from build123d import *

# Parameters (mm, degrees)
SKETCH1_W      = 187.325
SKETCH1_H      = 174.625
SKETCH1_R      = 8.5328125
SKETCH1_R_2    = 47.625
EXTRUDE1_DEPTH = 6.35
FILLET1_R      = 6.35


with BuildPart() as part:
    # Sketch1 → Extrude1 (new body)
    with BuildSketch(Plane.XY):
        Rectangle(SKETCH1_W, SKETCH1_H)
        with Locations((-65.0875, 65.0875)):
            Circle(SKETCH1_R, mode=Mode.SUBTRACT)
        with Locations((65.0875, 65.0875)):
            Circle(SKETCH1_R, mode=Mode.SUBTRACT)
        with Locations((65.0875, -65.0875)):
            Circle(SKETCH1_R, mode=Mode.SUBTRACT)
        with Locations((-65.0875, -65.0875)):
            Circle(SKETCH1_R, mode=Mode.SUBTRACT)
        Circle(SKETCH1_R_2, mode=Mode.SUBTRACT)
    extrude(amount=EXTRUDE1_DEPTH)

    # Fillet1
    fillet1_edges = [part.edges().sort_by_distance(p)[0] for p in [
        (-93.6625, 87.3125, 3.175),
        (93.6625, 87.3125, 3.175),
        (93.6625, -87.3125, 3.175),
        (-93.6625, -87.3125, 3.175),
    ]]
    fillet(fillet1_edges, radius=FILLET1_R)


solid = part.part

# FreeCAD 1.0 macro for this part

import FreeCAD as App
import Part
import Sketcher
Q = App.Units.Quantity


def edges_at(feature, points):
    """Names of the edges that pass closest to the given points."""
    edges = feature.Shape.Edges
    near = lambda p: min(range(len(edges)), key=lambda i: edges[i].distToShape(Part.Vertex(*p))[0])
    return sorted({f"Edge{near(p) + 1}" for p in points})


def add_polygon(sketch, points):
    """Adds a closed chain of lines whose ends are joined by coincident constraints."""
    first, n = sketch.GeometryCount, len(points)
    for a, b in zip(points, points[1:] + points[:1]):
        sketch.addGeometry(Part.LineSegment(App.Vector(*a, 0), App.Vector(*b, 0)), False)
    for i in range(n):
        sketch.addConstraint(Sketcher.Constraint("Coincident", first + i, 2, first + (i + 1) % n, 1))

doc = App.newDocument("Part")
body = doc.addObject("PartDesign::Body", "Body")

sketch1 = body.newObject("Sketcher::SketchObject", "Sketch")
sketch1.AttachmentSupport = (doc.getObject("XY_Plane"), [""])
sketch1.MapMode = "FlatFace"
add_polygon(sketch1, [(-94, 87), (-94, -87), (94, -87), (94, 87)])
sketch1.addGeometry(Part.Circle(App.Vector(-65, -65, 0), App.Vector(0, 0, 1), 9), False)
sketch1.addGeometry(Part.Circle(App.Vector(65, -65, 0), App.Vector(0, 0, 1), 9), False)
sketch1.addGeometry(Part.Circle(App.Vector(-65, 65, 0), App.Vector(0, 0, 1), 9), False)
sketch1.addGeometry(Part.Circle(App.Vector(0, 0, 0), App.Vector(0, 0, 1), 48), False)
sketch1.addGeometry(Part.Circle(App.Vector(65, 65, 0), App.Vector(0, 0, 1), 9), False)
sketch1.addConstraint(Sketcher.Constraint("Vertical", 0))
sketch1.addConstraint(Sketcher.Constraint("Horizontal", 1))
sketch1.addConstraint(Sketcher.Constraint("Vertical", 2))
sketch1.addConstraint(Sketcher.Constraint("Horizontal", 3))
sketch1.addConstraint(Sketcher.Constraint("Coincident", 7, 3, -1, 1))
sketch1.addConstraint(Sketcher.Constraint("Equal", 4, 5))
sketch1.addConstraint(Sketcher.Constraint("Equal", 5, 6))
sketch1.addConstraint(Sketcher.Constraint("Equal", 6, 8))
sketch1.addConstraint(Sketcher.Constraint("Symmetric", 5, 3, 6, 3, -1, 1))
sketch1.addConstraint(Sketcher.Constraint("Symmetric", 4, 3, 8, 3, -1, 1))
sketch1.addConstraint(Sketcher.Constraint("Symmetric", 0, 2, 2, 2, -1, 1))
sketch1.addConstraint(Sketcher.Constraint("Symmetric", 4, 3, 5, 3, -2))
sketch1.addConstraint(Sketcher.Constraint("Diameter", 7, Q("3.75 in")))
sketch1.addConstraint(Sketcher.Constraint("Diameter", 4, Q("0.671875 in")))
sketch1.addConstraint(Sketcher.Constraint("DistanceY", 0, 2, 6, 3, Q("6 in")))
sketch1.addConstraint(Sketcher.Constraint("DistanceX", 1, 1, 1, 2, Q("7.375 in")))
sketch1.addConstraint(Sketcher.Constraint("DistanceY", 0, 2, 0, 1, Q("6.875 in")))
sketch1.addConstraint(Sketcher.Constraint("DistanceX", 0, 2, 5, 3, Q("6.25 in")))
pad1 = body.newObject("PartDesign::Pad", "Pad")
pad1.Profile = sketch1
pad1.Length = Q("0.25 in")
doc.recompute()

fillet = body.newObject("PartDesign::Fillet", "Fillet")
fillet.Base = (pad1, edges_at(pad1, [
    (-93.662, 87.312, 3.175),
    (93.662, 87.312, 3.175),
    (93.662, -87.312, 3.175),
    (-93.662, -87.312, 3.175),
]))
fillet.Radius = Q("0.25 in")

doc.recompute()
